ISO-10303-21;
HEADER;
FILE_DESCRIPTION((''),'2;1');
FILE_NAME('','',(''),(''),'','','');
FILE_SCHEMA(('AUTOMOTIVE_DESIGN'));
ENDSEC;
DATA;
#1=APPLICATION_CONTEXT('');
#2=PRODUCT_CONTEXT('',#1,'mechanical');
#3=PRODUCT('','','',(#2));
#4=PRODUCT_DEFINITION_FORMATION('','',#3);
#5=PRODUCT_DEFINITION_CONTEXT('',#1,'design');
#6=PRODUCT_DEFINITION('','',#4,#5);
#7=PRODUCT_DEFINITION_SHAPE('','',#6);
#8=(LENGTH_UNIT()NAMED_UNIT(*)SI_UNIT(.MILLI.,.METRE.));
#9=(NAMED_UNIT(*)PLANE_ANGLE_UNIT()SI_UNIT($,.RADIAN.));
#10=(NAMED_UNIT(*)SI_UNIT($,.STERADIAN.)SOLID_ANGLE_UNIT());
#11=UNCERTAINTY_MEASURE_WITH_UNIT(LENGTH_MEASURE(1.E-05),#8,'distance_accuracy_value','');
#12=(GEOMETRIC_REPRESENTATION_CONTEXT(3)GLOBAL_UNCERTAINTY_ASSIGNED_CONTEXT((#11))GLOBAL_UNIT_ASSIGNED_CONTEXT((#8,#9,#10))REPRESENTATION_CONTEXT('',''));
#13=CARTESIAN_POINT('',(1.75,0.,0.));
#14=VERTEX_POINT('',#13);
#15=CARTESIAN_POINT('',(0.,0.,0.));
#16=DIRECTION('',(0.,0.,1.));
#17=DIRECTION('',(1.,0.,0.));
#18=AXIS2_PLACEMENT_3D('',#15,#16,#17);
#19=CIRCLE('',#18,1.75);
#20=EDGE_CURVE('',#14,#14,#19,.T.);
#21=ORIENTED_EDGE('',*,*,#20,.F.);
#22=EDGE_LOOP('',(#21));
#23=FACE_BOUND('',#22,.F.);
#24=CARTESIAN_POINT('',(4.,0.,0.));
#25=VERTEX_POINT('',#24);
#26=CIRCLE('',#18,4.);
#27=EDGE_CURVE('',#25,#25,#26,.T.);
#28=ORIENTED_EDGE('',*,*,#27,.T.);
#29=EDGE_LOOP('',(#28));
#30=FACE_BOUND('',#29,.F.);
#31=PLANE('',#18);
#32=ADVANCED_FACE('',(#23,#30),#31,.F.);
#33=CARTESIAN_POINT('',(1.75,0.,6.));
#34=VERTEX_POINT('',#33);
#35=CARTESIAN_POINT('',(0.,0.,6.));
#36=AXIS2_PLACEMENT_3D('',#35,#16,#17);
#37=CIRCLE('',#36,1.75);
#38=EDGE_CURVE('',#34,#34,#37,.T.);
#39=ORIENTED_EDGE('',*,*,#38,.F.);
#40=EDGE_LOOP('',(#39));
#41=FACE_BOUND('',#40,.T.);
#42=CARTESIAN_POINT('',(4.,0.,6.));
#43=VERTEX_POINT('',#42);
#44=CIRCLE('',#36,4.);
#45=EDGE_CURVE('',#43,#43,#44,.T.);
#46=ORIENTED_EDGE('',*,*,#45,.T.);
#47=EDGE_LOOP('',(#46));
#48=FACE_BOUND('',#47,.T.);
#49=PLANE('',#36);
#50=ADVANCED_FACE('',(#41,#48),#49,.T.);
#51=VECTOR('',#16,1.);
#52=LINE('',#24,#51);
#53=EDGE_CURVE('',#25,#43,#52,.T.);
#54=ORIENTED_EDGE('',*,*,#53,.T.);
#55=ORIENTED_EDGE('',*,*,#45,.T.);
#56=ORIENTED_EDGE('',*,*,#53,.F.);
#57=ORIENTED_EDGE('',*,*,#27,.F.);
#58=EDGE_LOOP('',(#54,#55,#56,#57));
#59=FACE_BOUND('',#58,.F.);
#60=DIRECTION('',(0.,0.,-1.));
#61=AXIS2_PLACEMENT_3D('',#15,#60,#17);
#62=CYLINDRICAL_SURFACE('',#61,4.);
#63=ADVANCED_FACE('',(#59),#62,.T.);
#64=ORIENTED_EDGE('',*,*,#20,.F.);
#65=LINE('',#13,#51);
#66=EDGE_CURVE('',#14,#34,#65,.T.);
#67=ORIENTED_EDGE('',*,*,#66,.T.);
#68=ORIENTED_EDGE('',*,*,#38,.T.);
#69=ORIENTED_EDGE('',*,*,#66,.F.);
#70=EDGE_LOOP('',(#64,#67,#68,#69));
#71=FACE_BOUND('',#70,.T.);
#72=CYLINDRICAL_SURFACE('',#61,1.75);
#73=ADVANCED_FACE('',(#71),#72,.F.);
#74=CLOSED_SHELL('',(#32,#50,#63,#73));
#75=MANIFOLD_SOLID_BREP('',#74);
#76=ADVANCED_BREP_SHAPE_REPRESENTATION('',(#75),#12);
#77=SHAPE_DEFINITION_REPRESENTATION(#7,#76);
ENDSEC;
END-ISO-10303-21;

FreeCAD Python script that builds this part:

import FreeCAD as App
import Part
import Sketcher
from FreeCAD import Vector

doc = App.newDocument("Part")
body = doc.addObject("PartDesign::Body", "Body")

sketch1 = body.newObject("Sketcher::SketchObject", "Sketch")
sketch1.AttachmentSupport = (doc.getObject("XY_Plane"), [""])
sketch1.MapMode = "FlatFace"
sketch1.addGeometry([
    Part.Circle(Vector(0, 0, 0), Vector(0, 0, 1), 4),
    Part.Circle(Vector(0, 0, 0), Vector(0, 0, 1), 1.8),
], False)
sketch1.addConstraint([
    Sketcher.Constraint("Coincident", 0, 3, -1, 1),
    Sketcher.Constraint("Coincident", 1, 3, -1, 1),
    Sketcher.Constraint("Diameter", 0, 8.0),
    Sketcher.Constraint("Diameter", 1, 3.5),
])
pad1 = body.newObject("PartDesign::Pad", "Pad")
pad1.Profile = sketch1
pad1.Length = 6

doc.recompute()
